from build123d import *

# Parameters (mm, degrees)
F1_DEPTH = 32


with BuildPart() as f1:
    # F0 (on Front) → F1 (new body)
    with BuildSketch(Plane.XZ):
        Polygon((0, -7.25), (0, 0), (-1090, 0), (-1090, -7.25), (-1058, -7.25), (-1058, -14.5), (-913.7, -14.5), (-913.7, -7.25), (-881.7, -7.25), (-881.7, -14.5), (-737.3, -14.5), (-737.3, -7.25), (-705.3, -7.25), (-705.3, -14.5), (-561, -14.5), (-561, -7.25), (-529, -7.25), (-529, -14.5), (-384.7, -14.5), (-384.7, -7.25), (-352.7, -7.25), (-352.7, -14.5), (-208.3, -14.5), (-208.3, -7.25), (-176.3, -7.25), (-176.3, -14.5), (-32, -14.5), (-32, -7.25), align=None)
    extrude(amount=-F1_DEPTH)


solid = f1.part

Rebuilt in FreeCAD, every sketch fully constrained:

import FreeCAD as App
import Part
import Sketcher
from FreeCAD import Vector
Q = App.Units.Quantity


def add_polygon(sketch, points):
    """Adds a closed chain of lines whose ends are joined by coincident constraints."""
    first, n = sketch.GeometryCount, len(points)
    for a, b in zip(points, points[1:] + points[:1]):
        sketch.addGeometry(Part.LineSegment(App.Vector(*a, 0), App.Vector(*b, 0)), False)
    for i in range(n):
        sketch.addConstraint(Sketcher.Constraint("Coincident", first + i, 2, first + (i + 1) % n, 1))

doc = App.newDocument("Part")
params = doc.addObject("Spreadsheet::Sheet", "Params")
for row, (alias, value) in enumerate([
    ("sketch1_width", "1090 mm"),
    ("sketch1_width2", "32 mm"),
    ("sketch1_width3", "144.3 mm"),
    ("sketch1_height", "7.25 mm"),
    ("pad1_length", "32 mm"),
], start=1):
    params.set(f"A{row}", alias)
    params.set(f"B{row}", "=" + value)
    params.setAlias(f"B{row}", alias)

body = doc.addObject("PartDesign::Body", "Body")

sketch1 = body.newObject("Sketcher::SketchObject", "Sketch")
sketch1.AttachmentSupport = (doc.getObject("XZ_Plane"), [""])
sketch1.MapMode = "FlatFace"
add_polygon(sketch1, [(0, -7.25), (0, 0), (-1090, 0), (-1090, -7.25), (-1058, -7.25), (-1058, -14.5), (-913.7, -14.5), (-913.7, -7.25), (-881.7, -7.25), (-881.7, -14.5), (-737.3, -14.5), (-737.3, -7.25), (-705.3, -7.25), (-705.3, -14.5), (-561, -14.5), (-561, -7.25), (-529, -7.25), (-529, -14.5), (-384.7, -14.5), (-384.7, -7.25), (-352.7, -7.25), (-352.7, -14.5), (-208.3, -14.5), (-208.3, -7.25), (-176.3, -7.25), (-176.3, -14.5), (-32, -14.5), (-32, -7.25)])
sketch1.addConstraint([
    Sketcher.Constraint("Vertical", 0),
    Sketcher.Constraint("Horizontal", 1),
    Sketcher.Constraint("Vertical", 2),
    Sketcher.Constraint("Horizontal", 3),
    Sketcher.Constraint("Vertical", 4),
    Sketcher.Constraint("Horizontal", 5),
    Sketcher.Constraint("Vertical", 6),
    Sketcher.Constraint("Horizontal", 7),
    Sketcher.Constraint("Vertical", 8),
    Sketcher.Constraint("Horizontal", 9),
    Sketcher.Constraint("Vertical", 10),
    Sketcher.Constraint("Horizontal", 11),
    Sketcher.Constraint("Vertical", 12),
    Sketcher.Constraint("Horizontal", 13),
    Sketcher.Constraint("Vertical", 14),
    Sketcher.Constraint("Horizontal", 15),
    Sketcher.Constraint("Vertical", 16),
    Sketcher.Constraint("Horizontal", 17),
    Sketcher.Constraint("Vertical", 18),
    Sketcher.Constraint("Horizontal", 19),
    Sketcher.Constraint("Vertical", 20),
    Sketcher.Constraint("Horizontal", 21),
    Sketcher.Constraint("Vertical", 22),
    Sketcher.Constraint("Horizontal", 23),
    Sketcher.Constraint("Vertical", 24),
    Sketcher.Constraint("Horizontal", 25),
    Sketcher.Constraint("Vertical", 26),
    Sketcher.Constraint("Horizontal", 27),
    Sketcher.Constraint("Coincident", 0, 2, -1, 1),
    Sketcher.Constraint("Horizontal", 3, 2, 6, 2),
    Sketcher.Constraint("Horizontal", 5, 2, 8, 2),
    Sketcher.Constraint("Horizontal", 7, 2, 10, 2),
    Sketcher.Constraint("Horizontal", 9, 2, 12, 2),
    Sketcher.Constraint("Horizontal", 11, 2, 14, 2),
    Sketcher.Constraint("Horizontal", 13, 2, 16, 2),
    Sketcher.Constraint("Horizontal", 15, 2, 18, 2),
    Sketcher.Constraint("Horizontal", 17, 2, 20, 2),
    Sketcher.Constraint("Horizontal", 19, 2, 22, 2),
    Sketcher.Constraint("Horizontal", 21, 2, 24, 2),
    Sketcher.Constraint("Horizontal", 23, 2, 26, 2),
    Sketcher.Constraint("Equal", 3, 7),
    Sketcher.Constraint("Equal", 7, 11),
    Sketcher.Constraint("Equal", 5, 13),
    Sketcher.Constraint("Equal", 11, 15),
    Sketcher.Constraint("Equal", 13, 17),
    Sketcher.Constraint("Equal", 15, 19),
    Sketcher.Constraint("Equal", 9, 21),
    Sketcher.Constraint("Equal", 19, 23),
    Sketcher.Constraint("Equal", 17, 25),
    Sketcher.Constraint("Equal", 23, 27),
    Sketcher.Constraint("Equal", 2, 4),
    Sketcher.Constraint("DistanceX", 1, 2, 1, 1, Q("1090 mm")),
    Sketcher.Constraint("DistanceX", 3, 1, 3, 2, Q("32 mm")),
    Sketcher.Constraint("DistanceX", 5, 1, 5, 2, Q("144.3 mm")),
    Sketcher.Constraint("DistanceY", 0, 1, 0, 2, Q("7.25 mm")),
])
sketch1.setExpression("Constraints[79]", "Params.sketch1_width")
sketch1.setExpression("Constraints[80]", "Params.sketch1_width2")
sketch1.setExpression("Constraints[81]", "Params.sketch1_width3")
sketch1.setExpression("Constraints[82]", "Params.sketch1_height")
pad1 = body.newObject("PartDesign::Pad", "Pad")
pad1.Profile = sketch1
pad1.setExpression("Length", "Params.pad1_length")
pad1.Reversed = True

doc.recompute()
